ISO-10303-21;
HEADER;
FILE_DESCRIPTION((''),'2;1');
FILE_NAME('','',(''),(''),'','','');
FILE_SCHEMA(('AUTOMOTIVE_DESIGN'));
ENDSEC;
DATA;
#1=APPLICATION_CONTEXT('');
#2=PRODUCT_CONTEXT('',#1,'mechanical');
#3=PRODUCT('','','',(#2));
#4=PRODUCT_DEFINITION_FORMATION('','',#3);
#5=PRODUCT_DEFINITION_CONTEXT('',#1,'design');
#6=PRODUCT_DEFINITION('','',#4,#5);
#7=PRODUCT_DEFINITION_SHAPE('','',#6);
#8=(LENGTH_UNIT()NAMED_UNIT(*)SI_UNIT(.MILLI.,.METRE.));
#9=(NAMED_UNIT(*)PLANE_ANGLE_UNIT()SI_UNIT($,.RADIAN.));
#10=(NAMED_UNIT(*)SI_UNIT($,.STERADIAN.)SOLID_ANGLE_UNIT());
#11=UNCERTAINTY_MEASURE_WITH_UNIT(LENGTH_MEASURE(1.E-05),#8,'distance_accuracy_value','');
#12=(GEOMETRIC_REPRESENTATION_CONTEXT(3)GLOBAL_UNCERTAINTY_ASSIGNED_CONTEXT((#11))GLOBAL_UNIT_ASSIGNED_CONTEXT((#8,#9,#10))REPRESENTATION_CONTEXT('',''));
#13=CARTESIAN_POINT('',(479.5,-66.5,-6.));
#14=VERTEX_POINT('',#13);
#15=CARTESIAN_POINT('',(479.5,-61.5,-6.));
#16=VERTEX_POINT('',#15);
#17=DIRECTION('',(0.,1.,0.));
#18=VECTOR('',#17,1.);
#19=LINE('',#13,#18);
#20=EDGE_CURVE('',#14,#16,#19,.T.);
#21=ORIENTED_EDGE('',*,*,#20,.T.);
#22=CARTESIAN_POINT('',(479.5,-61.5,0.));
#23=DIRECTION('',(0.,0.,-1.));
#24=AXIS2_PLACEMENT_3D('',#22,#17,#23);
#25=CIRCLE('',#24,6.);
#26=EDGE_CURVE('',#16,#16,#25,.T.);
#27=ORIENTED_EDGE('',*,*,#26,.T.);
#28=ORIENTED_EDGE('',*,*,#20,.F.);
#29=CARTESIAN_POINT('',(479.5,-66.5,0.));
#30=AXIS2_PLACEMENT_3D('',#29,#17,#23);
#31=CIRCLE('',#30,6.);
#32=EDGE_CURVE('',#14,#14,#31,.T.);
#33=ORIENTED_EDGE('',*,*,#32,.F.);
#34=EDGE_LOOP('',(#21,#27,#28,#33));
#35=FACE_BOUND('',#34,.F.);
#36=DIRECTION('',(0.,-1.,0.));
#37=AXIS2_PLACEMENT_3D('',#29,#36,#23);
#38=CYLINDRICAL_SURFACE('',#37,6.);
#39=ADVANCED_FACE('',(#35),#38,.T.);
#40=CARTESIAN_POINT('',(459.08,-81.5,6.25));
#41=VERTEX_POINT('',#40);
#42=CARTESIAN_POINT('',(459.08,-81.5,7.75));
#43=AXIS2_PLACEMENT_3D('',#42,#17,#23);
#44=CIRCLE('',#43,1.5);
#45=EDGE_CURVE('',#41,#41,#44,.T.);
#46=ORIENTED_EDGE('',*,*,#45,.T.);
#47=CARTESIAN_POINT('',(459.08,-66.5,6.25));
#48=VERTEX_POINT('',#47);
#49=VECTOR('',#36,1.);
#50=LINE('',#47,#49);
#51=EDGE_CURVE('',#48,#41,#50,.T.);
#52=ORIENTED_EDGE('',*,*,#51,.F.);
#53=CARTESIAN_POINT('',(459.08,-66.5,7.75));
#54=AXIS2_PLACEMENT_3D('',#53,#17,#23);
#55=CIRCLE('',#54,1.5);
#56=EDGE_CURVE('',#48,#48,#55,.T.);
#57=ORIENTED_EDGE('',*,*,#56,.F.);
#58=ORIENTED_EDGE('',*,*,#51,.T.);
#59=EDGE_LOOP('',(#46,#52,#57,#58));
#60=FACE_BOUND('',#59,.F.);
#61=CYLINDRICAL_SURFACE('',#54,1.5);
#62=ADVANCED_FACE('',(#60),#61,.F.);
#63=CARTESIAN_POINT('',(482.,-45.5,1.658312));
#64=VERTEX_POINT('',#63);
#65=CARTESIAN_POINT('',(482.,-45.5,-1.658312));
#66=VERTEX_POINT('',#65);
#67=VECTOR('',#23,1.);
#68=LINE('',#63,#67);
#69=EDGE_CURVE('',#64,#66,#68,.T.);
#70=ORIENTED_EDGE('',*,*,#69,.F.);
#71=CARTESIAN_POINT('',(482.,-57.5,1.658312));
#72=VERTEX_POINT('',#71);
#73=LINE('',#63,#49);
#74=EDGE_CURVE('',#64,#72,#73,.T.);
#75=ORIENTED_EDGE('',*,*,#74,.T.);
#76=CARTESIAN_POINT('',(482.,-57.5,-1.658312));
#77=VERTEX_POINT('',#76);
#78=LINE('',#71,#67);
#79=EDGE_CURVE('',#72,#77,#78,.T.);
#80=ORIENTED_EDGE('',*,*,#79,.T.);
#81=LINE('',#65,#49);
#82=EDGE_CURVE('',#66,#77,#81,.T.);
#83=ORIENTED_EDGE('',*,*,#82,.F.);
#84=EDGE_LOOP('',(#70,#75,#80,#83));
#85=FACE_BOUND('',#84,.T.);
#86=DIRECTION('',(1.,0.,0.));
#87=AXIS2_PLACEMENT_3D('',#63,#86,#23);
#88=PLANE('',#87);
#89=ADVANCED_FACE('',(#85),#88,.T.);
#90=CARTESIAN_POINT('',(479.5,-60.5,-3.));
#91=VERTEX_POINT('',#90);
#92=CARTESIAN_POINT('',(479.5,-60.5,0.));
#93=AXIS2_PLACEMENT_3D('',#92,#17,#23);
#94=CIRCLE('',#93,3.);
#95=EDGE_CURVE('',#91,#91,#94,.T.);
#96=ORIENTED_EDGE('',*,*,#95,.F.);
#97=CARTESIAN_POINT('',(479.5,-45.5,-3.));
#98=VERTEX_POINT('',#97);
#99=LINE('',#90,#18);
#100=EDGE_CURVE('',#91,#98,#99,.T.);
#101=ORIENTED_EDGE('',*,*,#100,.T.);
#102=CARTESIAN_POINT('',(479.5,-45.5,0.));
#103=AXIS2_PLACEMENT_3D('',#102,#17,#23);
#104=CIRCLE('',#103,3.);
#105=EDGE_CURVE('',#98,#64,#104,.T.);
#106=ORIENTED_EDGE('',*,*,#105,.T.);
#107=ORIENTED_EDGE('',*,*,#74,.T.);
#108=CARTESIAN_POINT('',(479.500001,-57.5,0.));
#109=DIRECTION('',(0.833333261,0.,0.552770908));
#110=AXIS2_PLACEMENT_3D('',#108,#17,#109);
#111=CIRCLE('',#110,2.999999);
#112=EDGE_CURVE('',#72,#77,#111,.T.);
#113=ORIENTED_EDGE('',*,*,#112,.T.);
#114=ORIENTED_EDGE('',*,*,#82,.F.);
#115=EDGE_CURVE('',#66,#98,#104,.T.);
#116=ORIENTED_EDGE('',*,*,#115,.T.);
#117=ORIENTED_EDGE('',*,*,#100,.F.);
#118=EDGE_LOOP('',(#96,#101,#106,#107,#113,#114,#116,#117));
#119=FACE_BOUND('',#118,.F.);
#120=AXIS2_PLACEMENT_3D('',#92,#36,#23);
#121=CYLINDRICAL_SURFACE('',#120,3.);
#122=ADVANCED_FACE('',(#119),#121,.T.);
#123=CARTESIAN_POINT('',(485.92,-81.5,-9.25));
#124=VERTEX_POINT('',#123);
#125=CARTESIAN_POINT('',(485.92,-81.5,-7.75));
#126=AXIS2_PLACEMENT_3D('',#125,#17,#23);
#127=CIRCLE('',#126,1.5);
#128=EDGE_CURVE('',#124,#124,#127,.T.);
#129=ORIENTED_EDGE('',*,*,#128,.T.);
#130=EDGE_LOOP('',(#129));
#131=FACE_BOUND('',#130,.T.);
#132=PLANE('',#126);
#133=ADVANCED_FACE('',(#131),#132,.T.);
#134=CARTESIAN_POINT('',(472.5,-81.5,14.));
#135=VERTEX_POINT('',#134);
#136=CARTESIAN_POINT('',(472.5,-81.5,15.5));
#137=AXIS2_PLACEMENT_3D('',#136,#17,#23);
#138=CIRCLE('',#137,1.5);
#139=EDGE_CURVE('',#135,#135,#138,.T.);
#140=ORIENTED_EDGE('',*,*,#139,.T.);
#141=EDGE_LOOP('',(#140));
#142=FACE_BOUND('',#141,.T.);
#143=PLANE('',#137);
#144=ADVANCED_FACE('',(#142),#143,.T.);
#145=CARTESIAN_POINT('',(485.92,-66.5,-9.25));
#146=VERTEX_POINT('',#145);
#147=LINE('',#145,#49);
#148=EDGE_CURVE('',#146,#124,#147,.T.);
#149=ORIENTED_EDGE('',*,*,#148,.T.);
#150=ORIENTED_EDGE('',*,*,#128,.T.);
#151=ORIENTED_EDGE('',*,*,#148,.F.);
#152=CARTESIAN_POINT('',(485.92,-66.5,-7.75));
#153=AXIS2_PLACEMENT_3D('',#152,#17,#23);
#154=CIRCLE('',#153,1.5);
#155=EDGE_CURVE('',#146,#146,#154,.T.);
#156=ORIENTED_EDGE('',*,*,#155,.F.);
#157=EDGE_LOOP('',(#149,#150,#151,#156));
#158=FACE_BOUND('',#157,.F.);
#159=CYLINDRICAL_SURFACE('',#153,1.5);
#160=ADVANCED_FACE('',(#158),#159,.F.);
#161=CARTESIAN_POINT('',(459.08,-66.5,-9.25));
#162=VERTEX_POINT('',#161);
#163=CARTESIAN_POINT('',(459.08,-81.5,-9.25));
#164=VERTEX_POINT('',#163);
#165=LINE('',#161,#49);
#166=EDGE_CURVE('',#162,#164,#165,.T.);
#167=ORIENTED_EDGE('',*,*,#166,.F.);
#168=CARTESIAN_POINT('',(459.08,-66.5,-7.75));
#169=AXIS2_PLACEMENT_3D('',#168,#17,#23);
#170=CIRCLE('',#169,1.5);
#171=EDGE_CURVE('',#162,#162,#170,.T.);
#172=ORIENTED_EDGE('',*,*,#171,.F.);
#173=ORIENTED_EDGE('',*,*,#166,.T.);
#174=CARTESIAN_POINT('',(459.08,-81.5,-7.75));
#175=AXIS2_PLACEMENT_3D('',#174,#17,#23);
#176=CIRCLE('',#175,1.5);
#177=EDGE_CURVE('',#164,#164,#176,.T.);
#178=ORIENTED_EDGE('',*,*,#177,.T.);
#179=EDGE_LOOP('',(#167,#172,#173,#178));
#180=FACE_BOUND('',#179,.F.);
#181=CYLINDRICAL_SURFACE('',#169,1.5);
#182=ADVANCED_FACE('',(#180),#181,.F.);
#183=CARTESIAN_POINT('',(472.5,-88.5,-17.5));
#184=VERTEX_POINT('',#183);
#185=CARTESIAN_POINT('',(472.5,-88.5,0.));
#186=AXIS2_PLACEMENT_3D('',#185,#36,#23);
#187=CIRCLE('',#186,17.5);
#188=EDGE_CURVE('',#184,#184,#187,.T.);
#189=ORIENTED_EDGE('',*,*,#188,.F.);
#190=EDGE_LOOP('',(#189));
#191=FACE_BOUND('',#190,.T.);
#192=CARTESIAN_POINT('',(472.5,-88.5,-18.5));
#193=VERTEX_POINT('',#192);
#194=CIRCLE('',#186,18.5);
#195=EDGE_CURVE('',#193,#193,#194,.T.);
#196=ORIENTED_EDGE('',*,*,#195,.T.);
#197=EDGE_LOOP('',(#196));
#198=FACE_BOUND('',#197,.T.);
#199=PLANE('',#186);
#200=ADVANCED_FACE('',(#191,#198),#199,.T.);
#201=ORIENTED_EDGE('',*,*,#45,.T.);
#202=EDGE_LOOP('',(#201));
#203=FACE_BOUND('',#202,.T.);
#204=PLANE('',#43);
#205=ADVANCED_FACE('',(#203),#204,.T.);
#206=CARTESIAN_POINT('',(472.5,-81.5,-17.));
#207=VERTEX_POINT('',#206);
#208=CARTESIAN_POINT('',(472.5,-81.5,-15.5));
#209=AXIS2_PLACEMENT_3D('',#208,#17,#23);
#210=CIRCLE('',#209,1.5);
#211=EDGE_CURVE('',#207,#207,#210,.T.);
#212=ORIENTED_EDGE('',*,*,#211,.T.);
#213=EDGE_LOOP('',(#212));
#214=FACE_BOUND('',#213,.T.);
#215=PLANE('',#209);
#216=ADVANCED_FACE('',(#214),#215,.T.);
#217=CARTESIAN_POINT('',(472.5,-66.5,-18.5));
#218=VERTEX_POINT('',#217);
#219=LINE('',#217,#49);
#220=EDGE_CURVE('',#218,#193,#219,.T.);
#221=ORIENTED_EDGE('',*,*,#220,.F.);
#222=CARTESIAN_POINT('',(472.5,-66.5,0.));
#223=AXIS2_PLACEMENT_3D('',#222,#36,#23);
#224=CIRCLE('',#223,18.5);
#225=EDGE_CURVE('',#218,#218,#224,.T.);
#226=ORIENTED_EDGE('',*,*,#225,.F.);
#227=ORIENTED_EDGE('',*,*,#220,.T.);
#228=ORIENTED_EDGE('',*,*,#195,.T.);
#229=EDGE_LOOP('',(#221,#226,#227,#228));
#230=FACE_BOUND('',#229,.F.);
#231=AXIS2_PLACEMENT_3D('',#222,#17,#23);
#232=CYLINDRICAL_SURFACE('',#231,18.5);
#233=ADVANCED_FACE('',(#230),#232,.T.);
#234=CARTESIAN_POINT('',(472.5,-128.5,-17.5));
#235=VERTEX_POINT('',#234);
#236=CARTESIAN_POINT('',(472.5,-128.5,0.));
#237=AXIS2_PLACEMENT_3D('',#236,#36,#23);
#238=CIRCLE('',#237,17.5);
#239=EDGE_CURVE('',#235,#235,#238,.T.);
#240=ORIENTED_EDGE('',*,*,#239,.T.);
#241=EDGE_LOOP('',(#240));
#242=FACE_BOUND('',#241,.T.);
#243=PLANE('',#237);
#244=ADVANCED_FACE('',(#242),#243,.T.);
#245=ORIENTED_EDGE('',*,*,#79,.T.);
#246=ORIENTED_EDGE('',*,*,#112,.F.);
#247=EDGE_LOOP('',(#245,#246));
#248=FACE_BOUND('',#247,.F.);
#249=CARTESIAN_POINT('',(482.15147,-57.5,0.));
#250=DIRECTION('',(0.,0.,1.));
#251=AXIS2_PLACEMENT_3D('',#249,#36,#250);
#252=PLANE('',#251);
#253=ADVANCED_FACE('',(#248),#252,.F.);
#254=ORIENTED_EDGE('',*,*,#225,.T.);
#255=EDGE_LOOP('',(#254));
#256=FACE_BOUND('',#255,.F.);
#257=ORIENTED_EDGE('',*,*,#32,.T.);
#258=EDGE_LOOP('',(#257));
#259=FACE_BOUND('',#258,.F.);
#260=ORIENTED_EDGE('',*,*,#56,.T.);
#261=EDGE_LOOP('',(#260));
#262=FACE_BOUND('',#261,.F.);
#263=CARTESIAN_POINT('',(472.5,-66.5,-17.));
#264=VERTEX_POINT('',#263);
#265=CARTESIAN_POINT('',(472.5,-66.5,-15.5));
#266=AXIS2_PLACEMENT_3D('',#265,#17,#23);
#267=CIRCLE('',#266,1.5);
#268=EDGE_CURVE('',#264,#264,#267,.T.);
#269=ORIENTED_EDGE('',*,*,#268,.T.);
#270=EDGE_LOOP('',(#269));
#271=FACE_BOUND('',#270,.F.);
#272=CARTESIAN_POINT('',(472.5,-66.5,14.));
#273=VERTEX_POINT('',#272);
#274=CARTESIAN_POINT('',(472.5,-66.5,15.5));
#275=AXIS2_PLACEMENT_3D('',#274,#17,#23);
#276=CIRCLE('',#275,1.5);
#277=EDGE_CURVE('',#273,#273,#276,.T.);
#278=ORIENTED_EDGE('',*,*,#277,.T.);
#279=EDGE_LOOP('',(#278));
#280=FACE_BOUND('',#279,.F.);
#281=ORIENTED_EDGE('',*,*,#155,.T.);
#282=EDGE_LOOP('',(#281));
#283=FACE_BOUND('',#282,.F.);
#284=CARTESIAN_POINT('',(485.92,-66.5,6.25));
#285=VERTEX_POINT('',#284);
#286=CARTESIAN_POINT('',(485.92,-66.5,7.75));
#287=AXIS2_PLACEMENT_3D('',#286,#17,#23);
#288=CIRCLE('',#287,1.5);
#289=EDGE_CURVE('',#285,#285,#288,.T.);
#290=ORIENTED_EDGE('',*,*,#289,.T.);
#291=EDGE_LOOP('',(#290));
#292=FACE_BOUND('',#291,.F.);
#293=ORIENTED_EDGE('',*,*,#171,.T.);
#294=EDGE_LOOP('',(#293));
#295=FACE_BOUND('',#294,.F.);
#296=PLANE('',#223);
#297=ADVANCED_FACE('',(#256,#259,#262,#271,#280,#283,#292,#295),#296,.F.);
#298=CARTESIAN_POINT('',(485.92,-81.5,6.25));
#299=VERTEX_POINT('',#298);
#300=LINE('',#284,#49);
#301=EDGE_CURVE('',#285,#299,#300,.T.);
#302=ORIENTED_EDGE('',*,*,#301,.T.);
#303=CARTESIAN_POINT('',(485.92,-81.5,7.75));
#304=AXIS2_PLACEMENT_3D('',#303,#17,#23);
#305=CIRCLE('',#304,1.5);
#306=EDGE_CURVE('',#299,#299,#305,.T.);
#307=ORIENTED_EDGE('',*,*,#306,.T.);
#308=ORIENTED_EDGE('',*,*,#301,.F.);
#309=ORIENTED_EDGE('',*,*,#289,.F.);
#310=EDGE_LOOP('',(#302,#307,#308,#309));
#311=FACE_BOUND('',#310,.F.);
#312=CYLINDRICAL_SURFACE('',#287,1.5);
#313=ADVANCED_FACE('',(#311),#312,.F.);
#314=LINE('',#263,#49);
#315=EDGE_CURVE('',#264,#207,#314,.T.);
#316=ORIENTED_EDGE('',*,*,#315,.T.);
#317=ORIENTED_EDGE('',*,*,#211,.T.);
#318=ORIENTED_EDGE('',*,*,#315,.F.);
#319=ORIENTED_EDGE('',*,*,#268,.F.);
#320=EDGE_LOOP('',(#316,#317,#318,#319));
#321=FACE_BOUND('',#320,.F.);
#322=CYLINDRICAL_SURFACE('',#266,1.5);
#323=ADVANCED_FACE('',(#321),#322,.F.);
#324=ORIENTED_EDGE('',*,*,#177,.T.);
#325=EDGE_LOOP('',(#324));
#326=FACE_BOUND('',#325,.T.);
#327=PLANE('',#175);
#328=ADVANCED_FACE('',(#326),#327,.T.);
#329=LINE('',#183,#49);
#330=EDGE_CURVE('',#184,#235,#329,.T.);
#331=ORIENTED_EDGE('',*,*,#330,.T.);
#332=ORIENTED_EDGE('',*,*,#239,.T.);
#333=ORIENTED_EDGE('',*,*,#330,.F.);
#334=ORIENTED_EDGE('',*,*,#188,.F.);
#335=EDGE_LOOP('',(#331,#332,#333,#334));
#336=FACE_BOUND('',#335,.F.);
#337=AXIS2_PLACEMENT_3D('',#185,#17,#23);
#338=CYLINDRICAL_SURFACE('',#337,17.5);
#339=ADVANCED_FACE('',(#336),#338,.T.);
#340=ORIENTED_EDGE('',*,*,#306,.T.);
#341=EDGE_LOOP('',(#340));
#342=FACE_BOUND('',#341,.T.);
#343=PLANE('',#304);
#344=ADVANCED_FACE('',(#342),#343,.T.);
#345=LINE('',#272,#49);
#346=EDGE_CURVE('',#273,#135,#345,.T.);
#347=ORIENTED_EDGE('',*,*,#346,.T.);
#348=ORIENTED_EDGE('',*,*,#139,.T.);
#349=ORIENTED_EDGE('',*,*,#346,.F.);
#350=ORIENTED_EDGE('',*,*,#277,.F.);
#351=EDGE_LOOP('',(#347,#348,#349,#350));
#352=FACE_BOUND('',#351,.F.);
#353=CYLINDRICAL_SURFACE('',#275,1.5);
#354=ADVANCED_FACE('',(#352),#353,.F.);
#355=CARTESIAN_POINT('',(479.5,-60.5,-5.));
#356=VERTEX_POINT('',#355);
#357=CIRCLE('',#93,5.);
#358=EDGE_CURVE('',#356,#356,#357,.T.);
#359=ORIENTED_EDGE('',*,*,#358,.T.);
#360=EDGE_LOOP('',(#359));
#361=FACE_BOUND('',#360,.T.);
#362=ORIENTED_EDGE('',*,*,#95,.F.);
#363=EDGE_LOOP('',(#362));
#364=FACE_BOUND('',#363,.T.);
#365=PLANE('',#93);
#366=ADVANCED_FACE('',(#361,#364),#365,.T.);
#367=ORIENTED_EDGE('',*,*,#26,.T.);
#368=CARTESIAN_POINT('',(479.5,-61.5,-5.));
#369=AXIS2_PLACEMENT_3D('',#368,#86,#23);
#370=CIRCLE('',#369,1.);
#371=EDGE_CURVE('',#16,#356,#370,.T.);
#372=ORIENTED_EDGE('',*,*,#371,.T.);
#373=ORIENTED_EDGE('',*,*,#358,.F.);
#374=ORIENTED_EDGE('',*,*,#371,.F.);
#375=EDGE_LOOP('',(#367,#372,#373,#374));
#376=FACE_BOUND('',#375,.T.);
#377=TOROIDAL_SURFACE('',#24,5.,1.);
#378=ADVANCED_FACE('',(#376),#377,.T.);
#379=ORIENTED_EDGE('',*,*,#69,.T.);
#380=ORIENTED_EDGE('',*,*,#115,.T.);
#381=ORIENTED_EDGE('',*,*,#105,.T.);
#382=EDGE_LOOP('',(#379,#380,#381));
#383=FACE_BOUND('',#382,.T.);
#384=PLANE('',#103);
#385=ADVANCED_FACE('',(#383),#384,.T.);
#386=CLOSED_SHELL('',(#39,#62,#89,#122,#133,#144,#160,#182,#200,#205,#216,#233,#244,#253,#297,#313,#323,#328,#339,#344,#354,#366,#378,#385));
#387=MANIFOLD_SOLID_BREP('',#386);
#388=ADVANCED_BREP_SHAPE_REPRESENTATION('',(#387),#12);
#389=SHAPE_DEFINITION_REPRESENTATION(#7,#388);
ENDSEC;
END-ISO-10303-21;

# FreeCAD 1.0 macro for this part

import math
import FreeCAD as App
import Part
import Sketcher
from FreeCAD import Vector


def edges_at(feature, points):
    """Names of the edges that pass closest to the given points."""
    edges = feature.Shape.Edges
    near = lambda p: min(range(len(edges)), key=lambda i: edges[i].distToShape(Part.Vertex(*p))[0])
    return sorted({f"Edge{near(p) + 1}" for p in points})

doc = App.newDocument("Part")
body = doc.addObject("PartDesign::Body", "Body")

# Sketch on XZ plane
sketch1 = body.newObject("Sketcher::SketchObject", "Sketch")
sketch1.AttachmentSupport = (doc.getObject("XZ_Plane"), [""])
sketch1.MapMode = "FlatFace"
sketch1.addGeometry(Part.Circle(Vector(0, 18, 0), Vector(0, 0, 1), 18), False)
sketch1.addConstraint(Sketcher.Constraint("PointOnObject", 0, 3, -2))
sketch1.addConstraint(Sketcher.Constraint("Diameter", 0, 37.0))
sketch1.addConstraint(Sketcher.Constraint("DistanceY", -1, 1, 0, 3, 18.5))
pad1 = body.newObject("PartDesign::Pad", "Pad")
pad1.Profile = sketch1
pad1.Length = 22

# Sketch on XZ plane
sketch2 = body.newObject("Sketcher::SketchObject", "Sketch001")
sketch2.AttachmentSupport = (doc.getObject("XZ_Plane"), [""])
sketch2.MapMode = "FlatFace"
sketch2.AttachmentOffset = App.Placement(Vector(0, 0, 22), App.Rotation())
sketch2.addGeometry(Part.Circle(Vector(0, 18, 0), Vector(0, 0, 1), 18), False)
sketch2.addConstraint(Sketcher.Constraint("PointOnObject", 0, 3, -2))
sketch2.addConstraint(Sketcher.Constraint("Diameter", 0, 35.0))
sketch2.addConstraint(Sketcher.Constraint("DistanceY", -1, 1, 0, 3, 18.5))
pad2 = body.newObject("PartDesign::Pad", "Pad001")
pad2.Profile = sketch2
pad2.Length = 40

# Sketch on XZ plane
sketch3 = body.newObject("Sketcher::SketchObject", "Sketch002")
sketch3.AttachmentSupport = (doc.getObject("XZ_Plane"), [""])
sketch3.MapMode = "FlatFace"
sketch3.addGeometry(Part.Circle(Vector(0, 26, 0), Vector(0, 0, 1), 6), False)
sketch3.addConstraint(Sketcher.Constraint("PointOnObject", 0, 3, -2))
sketch3.addConstraint(Sketcher.Constraint("Diameter", 0, 12.0))
sketch3.addConstraint(Sketcher.Constraint("DistanceY", -1, 1, 0, 3, 25.5))
pad3 = body.newObject("PartDesign::Pad", "Pad002")
pad3.Profile = sketch3
pad3.Length = 6
pad3.Reversed = True
doc.recompute()

fillet = body.newObject("PartDesign::Fillet", "Fillet")
fillet.Base = (pad3, edges_at(pad3, [(-6, 6, 25.5)]))
fillet.Radius = 1

# Sketch on XZ plane
sketch4 = body.newObject("Sketcher::SketchObject", "Sketch003")
sketch4.AttachmentSupport = (doc.getObject("XZ_Plane"), [""])
sketch4.MapMode = "FlatFace"
sketch4.AttachmentOffset = App.Placement(Vector(0, 0, -6), App.Rotation())
sketch4.addGeometry(Part.Circle(Vector(0, 25.5, 0), Vector(0, 0, 1), 3), False)
sketch4.addConstraint(Sketcher.Constraint("PointOnObject", 0, 3, -2))
sketch4.addConstraint(Sketcher.Constraint("Diameter", 0, 6.0))
sketch4.addConstraint(Sketcher.Constraint("DistanceY", -1, 1, 0, 3, 25.5))
pad4 = body.newObject("PartDesign::Pad", "Pad003")
pad4.Profile = sketch4
pad4.Length = 15
pad4.Reversed = True

# Sketch on XZ plane
sketch5 = body.newObject("Sketcher::SketchObject", "Sketch004")
sketch5.AttachmentSupport = (doc.getObject("XZ_Plane"), [""])
sketch5.MapMode = "FlatFace"
sketch5.AttachmentOffset = App.Placement(Vector(0, 0, -21), App.Rotation())
sketch5.addGeometry(Part.LineSegment(Vector(1.7, 28, 0), Vector(-1.7, 28, 0)), False)
sketch5.addGeometry(Part.ArcOfCircle(Part.Circle(Vector(0, 25.5, 0), Vector(0, 0, 1), 3), math.radians(56), math.radians(124)), False)
sketch5.addConstraint(Sketcher.Constraint("Coincident", 0, 1, 1, 1))
sketch5.addConstraint(Sketcher.Constraint("Coincident", 1, 2, 0, 2))
sketch5.addConstraint(Sketcher.Constraint("Horizontal", 0))
sketch5.addConstraint(Sketcher.Constraint("PointOnObject", 1, 3, -2))
sketch5.addConstraint(Sketcher.Constraint("Radius", 1, 2.999999))
sketch5.addConstraint(Sketcher.Constraint("DistanceY", -1, 1, 0, 1, 28.0))
sketch5.addConstraint(Sketcher.Constraint("DistanceY", -1, 1, 1, 3, 25.500001))
pocket1 = body.newObject("PartDesign::Pocket", "Pocket")
pocket1.Profile = sketch5
pocket1.Length = 12
pocket1.Reversed = True

# Sketch on XZ plane
sketch6 = body.newObject("Sketcher::SketchObject", "Sketch005")
sketch6.AttachmentSupport = (doc.getObject("XZ_Plane"), [""])
sketch6.MapMode = "FlatFace"
sketch6.addGeometry(Part.Circle(Vector(-7.8, 5.1, 0), Vector(0, 0, 1), 1.5), False)
sketch6.addGeometry(Part.Circle(Vector(7.8, 5.1, 0), Vector(0, 0, 1), 1.5), False)
sketch6.addGeometry(Part.Circle(Vector(-15.5, 18.5, 0), Vector(0, 0, 1), 1.5), False)
sketch6.addGeometry(Part.Circle(Vector(15.5, 18.5, 0), Vector(0, 0, 1), 1.5), False)
sketch6.addGeometry(Part.Circle(Vector(7.8, 31.9, 0), Vector(0, 0, 1), 1.5), False)
sketch6.addGeometry(Part.Circle(Vector(-7.8, 31.9, 0), Vector(0, 0, 1), 1.5), False)
sketch6.addConstraint(Sketcher.Constraint("Equal", 0, 1))
sketch6.addConstraint(Sketcher.Constraint("Equal", 1, 2))
sketch6.addConstraint(Sketcher.Constraint("Equal", 2, 3))
sketch6.addConstraint(Sketcher.Constraint("Equal", 3, 4))
sketch6.addConstraint(Sketcher.Constraint("Equal", 4, 5))
sketch6.addConstraint(Sketcher.Constraint("Symmetric", 0, 3, 1, 3, -2))
sketch6.addConstraint(Sketcher.Constraint("Symmetric", 2, 3, 3, 3, -2))
sketch6.addConstraint(Sketcher.Constraint("Symmetric", 4, 3, 5, 3, -2))
sketch6.addConstraint(Sketcher.Constraint("Vertical", 1, 3, 4, 3))
sketch6.addConstraint(Sketcher.Constraint("Diameter", 0, 3.0))
sketch6.addConstraint(Sketcher.Constraint("DistanceX", 2, 3, 3, 3, 31.0))
sketch6.addConstraint(Sketcher.Constraint("DistanceY", -1, 1, 2, 3, 18.5))
sketch6.addConstraint(Sketcher.Constraint("DistanceX", 0, 3, 1, 3, 15.5))
sketch6.addConstraint(Sketcher.Constraint("DistanceY", -1, 1, 0, 3, 5.08))
sketch6.addConstraint(Sketcher.Constraint("DistanceY", -1, 1, 4, 3, 31.92))
pocket2 = body.newObject("PartDesign::Pocket", "Pocket001")
pocket2.Profile = sketch6
pocket2.Length = 15
pocket2.Reversed = True
body2 = doc.addObject("PartDesign::Body", "Body001")
doc.recompute()

body.Placement = App.Placement(Vector(454, -66.5, 0), App.Rotation(Vector(0, 1, 0), 90))
boolean = body2.newObject("PartDesign::Boolean", "Boolean")
boolean.Type = "Fuse"
boolean.addObjects([body])

doc.recompute()
